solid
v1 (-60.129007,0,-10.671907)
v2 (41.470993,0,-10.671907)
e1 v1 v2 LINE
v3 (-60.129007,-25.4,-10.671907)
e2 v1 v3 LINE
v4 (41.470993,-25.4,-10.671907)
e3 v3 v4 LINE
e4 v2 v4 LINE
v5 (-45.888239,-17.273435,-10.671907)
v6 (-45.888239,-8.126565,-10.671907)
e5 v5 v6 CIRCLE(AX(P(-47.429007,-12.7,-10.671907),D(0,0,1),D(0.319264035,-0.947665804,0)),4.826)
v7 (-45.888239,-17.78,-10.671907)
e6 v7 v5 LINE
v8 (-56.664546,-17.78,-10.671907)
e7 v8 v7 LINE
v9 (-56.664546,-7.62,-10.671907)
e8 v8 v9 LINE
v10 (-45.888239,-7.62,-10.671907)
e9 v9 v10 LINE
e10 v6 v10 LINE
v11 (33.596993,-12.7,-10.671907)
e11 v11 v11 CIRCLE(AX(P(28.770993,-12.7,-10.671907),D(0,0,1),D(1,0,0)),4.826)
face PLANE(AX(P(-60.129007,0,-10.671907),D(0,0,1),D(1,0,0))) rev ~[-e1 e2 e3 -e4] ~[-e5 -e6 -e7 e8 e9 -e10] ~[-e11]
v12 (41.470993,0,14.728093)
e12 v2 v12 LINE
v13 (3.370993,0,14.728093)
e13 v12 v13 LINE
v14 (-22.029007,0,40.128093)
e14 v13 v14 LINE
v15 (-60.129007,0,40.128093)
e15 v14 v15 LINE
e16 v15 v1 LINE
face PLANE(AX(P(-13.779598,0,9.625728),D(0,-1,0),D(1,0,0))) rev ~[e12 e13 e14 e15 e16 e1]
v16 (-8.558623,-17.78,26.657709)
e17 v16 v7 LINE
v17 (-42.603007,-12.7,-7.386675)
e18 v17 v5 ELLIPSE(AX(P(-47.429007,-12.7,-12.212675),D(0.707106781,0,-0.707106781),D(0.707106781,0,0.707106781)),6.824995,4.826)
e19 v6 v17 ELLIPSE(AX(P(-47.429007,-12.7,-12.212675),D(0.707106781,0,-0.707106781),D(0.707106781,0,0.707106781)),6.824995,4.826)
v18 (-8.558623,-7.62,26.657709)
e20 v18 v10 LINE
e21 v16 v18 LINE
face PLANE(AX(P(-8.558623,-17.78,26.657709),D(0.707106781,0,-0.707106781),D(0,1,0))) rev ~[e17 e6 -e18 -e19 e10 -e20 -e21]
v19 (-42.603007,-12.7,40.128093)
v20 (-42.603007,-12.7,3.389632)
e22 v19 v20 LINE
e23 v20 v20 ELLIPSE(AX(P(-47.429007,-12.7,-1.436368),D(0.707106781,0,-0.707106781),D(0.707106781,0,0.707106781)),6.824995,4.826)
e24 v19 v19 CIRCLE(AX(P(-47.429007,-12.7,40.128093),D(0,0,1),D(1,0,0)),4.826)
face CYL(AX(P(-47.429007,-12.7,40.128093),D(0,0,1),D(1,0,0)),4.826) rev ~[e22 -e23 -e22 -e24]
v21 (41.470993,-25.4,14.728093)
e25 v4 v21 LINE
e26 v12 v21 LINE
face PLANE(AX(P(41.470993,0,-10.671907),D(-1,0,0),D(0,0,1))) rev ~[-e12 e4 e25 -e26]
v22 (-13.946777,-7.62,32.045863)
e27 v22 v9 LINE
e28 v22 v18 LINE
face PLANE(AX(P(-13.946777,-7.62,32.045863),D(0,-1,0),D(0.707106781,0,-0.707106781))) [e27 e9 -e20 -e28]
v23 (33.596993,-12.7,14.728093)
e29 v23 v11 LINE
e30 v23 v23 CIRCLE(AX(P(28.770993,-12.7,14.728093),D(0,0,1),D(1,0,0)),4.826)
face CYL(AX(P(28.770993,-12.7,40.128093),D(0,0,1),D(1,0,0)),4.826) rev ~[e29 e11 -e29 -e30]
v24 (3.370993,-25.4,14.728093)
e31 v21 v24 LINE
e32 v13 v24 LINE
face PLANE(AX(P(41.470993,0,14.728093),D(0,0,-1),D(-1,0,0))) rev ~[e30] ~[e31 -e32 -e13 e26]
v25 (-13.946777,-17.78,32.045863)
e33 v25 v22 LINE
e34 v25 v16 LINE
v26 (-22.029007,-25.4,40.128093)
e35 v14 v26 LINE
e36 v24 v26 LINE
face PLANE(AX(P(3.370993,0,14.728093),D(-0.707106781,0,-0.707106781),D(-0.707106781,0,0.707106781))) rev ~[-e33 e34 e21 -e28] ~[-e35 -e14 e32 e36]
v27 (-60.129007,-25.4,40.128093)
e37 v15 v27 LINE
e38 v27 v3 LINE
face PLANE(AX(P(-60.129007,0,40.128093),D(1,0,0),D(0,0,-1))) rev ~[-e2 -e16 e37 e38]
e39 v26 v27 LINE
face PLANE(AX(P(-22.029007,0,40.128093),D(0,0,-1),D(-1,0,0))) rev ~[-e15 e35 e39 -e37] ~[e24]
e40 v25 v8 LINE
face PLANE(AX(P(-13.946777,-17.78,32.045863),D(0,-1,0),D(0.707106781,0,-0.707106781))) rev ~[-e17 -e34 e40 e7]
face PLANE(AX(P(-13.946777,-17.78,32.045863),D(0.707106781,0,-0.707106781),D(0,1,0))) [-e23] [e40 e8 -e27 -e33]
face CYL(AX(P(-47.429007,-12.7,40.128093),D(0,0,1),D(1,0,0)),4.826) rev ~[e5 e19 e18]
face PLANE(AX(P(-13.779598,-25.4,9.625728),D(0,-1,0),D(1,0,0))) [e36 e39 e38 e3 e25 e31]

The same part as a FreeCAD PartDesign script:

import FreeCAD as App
import Part
import Sketcher
Q = App.Units.Quantity

doc = App.newDocument("Part")
body = doc.addObject("PartDesign::Body", "Body")

# Sketch on XZ plane
sketch1 = body.newObject("Sketcher::SketchObject", "Sketch")
sketch1.AttachmentSupport = (doc.getObject("XZ_Plane"), [""])
sketch1.MapMode = "FlatFace"
sketch1.addGeometry([
    Part.LineSegment(App.Vector(-22.029007, 40.128093, 0), App.Vector(-60.129007, 40.128093, 0)),  # 0
    Part.LineSegment(App.Vector(-60.129007, 40.128093, 0), App.Vector(-60.129007, -10.671907, 0)),  # 1
    Part.LineSegment(App.Vector(-60.129007, -10.671907, 0), App.Vector(41.470993, -10.671907, 0)),  # 2
    Part.LineSegment(App.Vector(41.470993, -10.671907, 0), App.Vector(41.470993, 14.728093, 0)),  # 3
    Part.LineSegment(App.Vector(41.470993, 14.728093, 0), App.Vector(3.370993, 14.728093, 0)),  # 4
    Part.LineSegment(App.Vector(3.370993, 14.728093, 0), App.Vector(-22.029007, 40.128093, 0)),  # 5
], False)
sketch1.addConstraint([
    Sketcher.Constraint("Coincident", 0, 2, 1, 1),
    Sketcher.Constraint("Coincident", 1, 2, 2, 1),
    Sketcher.Constraint("Coincident", 2, 2, 3, 1),
    Sketcher.Constraint("Coincident", 3, 2, 4, 1),
    Sketcher.Constraint("Coincident", 4, 2, 5, 1),
    Sketcher.Constraint("Coincident", 5, 2, 0, 1),
    Sketcher.Constraint("Horizontal", 0),
    Sketcher.Constraint("Vertical", 1),
    Sketcher.Constraint("Horizontal", 2),
    Sketcher.Constraint("Vertical", 3),
    Sketcher.Constraint("Horizontal", 4),
    Sketcher.Constraint("Equal", 0, 4),
    Sketcher.Constraint("DistanceX", 2, 1, 2, 2, Q("4 in")),
    Sketcher.Constraint("DistanceY", 1, 2, 1, 1, Q("2 in")),
    Sketcher.Constraint("DistanceY", 3, 1, 3, 2, Q("1 in")),
    Sketcher.Constraint("DistanceX", 0, 2, 0, 1, Q("1.5 in")),
    Sketcher.Constraint("DistanceX", 0, 2, -1, 1, Q("60.129007 mm")),
    Sketcher.Constraint("DistanceY", -1, 1, 0, 2, Q("40.128093 mm")),
])
pad1 = body.newObject("PartDesign::Pad", "Pad")
pad1.Profile = sketch1
pad1.Length = Q("1 in")

# Sketch on XY plane
sketch2 = body.newObject("Sketcher::SketchObject", "Sketch001")
sketch2.AttachmentSupport = (doc.getObject("XY_Plane"), [""])
sketch2.MapMode = "FlatFace"
sketch2.AttachmentOffset = App.Placement(App.Vector(0, 0, 40.128093), App.Rotation())
sketch2.addGeometry([
    Part.Circle(App.Vector(-47.429007, -12.7, 0), App.Vector(0, 0, 1), 4.826),
    Part.Circle(App.Vector(28.770993, -12.7, 0), App.Vector(0, 0, 1), 4.826),
], False)
sketch2.addConstraint([
    Sketcher.Constraint("Equal", 0, 1),
    Sketcher.Constraint("Horizontal", 0, 3, 1, 3),
    Sketcher.Constraint("Diameter", 0, Q("0.38 in")),
    Sketcher.Constraint("DistanceX", 0, 3, 1, 3, Q("3 in")),
    Sketcher.Constraint("DistanceY", 0, 3, -1, 1, Q("0.5 in")),
    Sketcher.Constraint("DistanceX", 0, 3, -1, 1, Q("47.429007 mm")),
])
pocket1 = body.newObject("PartDesign::Pocket", "Pocket")
pocket1.Profile = sketch2
pocket1.Type = "ThroughAll"

# Sketch on an angled plane
sketch3 = body.newObject("Sketcher::SketchObject", "Sketch002")
sketch3.Placement = App.Placement(App.Vector(9.049543, 0, 9.049543), App.Rotation(App.Vector(0.707106781, 0, -0.707106781), App.Vector(0, 0.999999999, 0), App.Vector(0.707106781, 0, 0.707106781), "ZXY"))
sketch3.addGeometry([
    Part.LineSegment(App.Vector(-32.521707, -7.62, 0), App.Vector(-32.521707, -17.78, 0)),
    Part.LineSegment(App.Vector(-32.521707, -17.78, 0), App.Vector(-24.901707, -17.78, 0)),
    Part.LineSegment(App.Vector(-24.901707, -17.78, 0), App.Vector(-24.901707, -7.62, 0)),
    Part.LineSegment(App.Vector(-24.901707, -7.62, 0), App.Vector(-32.521707, -7.62, 0)),
], False)
sketch3.addConstraint([
    Sketcher.Constraint("Coincident", 0, 2, 1, 1),
    Sketcher.Constraint("Coincident", 1, 2, 2, 1),
    Sketcher.Constraint("Coincident", 2, 2, 3, 1),
    Sketcher.Constraint("Coincident", 3, 2, 0, 1),
    Sketcher.Constraint("Vertical", 0),
    Sketcher.Constraint("Horizontal", 1),
    Sketcher.Constraint("Vertical", 2),
    Sketcher.Constraint("Horizontal", 3),
    Sketcher.Constraint("DistanceX", 1, 1, 1, 2, Q("0.3 in")),
    Sketcher.Constraint("DistanceY", 0, 2, 0, 1, Q("0.4 in")),
    Sketcher.Constraint("DistanceY", 0, 2, -1, 1, Q("0.7 in")),
    Sketcher.Constraint("DistanceX", 0, 2, -1, 1, Q("32.521707 mm")),
])
pocket2 = body.newObject("PartDesign::Pocket", "Pocket001")
pocket2.Profile = sketch3
pocket2.Type = "ThroughAll"

doc.recompute()
